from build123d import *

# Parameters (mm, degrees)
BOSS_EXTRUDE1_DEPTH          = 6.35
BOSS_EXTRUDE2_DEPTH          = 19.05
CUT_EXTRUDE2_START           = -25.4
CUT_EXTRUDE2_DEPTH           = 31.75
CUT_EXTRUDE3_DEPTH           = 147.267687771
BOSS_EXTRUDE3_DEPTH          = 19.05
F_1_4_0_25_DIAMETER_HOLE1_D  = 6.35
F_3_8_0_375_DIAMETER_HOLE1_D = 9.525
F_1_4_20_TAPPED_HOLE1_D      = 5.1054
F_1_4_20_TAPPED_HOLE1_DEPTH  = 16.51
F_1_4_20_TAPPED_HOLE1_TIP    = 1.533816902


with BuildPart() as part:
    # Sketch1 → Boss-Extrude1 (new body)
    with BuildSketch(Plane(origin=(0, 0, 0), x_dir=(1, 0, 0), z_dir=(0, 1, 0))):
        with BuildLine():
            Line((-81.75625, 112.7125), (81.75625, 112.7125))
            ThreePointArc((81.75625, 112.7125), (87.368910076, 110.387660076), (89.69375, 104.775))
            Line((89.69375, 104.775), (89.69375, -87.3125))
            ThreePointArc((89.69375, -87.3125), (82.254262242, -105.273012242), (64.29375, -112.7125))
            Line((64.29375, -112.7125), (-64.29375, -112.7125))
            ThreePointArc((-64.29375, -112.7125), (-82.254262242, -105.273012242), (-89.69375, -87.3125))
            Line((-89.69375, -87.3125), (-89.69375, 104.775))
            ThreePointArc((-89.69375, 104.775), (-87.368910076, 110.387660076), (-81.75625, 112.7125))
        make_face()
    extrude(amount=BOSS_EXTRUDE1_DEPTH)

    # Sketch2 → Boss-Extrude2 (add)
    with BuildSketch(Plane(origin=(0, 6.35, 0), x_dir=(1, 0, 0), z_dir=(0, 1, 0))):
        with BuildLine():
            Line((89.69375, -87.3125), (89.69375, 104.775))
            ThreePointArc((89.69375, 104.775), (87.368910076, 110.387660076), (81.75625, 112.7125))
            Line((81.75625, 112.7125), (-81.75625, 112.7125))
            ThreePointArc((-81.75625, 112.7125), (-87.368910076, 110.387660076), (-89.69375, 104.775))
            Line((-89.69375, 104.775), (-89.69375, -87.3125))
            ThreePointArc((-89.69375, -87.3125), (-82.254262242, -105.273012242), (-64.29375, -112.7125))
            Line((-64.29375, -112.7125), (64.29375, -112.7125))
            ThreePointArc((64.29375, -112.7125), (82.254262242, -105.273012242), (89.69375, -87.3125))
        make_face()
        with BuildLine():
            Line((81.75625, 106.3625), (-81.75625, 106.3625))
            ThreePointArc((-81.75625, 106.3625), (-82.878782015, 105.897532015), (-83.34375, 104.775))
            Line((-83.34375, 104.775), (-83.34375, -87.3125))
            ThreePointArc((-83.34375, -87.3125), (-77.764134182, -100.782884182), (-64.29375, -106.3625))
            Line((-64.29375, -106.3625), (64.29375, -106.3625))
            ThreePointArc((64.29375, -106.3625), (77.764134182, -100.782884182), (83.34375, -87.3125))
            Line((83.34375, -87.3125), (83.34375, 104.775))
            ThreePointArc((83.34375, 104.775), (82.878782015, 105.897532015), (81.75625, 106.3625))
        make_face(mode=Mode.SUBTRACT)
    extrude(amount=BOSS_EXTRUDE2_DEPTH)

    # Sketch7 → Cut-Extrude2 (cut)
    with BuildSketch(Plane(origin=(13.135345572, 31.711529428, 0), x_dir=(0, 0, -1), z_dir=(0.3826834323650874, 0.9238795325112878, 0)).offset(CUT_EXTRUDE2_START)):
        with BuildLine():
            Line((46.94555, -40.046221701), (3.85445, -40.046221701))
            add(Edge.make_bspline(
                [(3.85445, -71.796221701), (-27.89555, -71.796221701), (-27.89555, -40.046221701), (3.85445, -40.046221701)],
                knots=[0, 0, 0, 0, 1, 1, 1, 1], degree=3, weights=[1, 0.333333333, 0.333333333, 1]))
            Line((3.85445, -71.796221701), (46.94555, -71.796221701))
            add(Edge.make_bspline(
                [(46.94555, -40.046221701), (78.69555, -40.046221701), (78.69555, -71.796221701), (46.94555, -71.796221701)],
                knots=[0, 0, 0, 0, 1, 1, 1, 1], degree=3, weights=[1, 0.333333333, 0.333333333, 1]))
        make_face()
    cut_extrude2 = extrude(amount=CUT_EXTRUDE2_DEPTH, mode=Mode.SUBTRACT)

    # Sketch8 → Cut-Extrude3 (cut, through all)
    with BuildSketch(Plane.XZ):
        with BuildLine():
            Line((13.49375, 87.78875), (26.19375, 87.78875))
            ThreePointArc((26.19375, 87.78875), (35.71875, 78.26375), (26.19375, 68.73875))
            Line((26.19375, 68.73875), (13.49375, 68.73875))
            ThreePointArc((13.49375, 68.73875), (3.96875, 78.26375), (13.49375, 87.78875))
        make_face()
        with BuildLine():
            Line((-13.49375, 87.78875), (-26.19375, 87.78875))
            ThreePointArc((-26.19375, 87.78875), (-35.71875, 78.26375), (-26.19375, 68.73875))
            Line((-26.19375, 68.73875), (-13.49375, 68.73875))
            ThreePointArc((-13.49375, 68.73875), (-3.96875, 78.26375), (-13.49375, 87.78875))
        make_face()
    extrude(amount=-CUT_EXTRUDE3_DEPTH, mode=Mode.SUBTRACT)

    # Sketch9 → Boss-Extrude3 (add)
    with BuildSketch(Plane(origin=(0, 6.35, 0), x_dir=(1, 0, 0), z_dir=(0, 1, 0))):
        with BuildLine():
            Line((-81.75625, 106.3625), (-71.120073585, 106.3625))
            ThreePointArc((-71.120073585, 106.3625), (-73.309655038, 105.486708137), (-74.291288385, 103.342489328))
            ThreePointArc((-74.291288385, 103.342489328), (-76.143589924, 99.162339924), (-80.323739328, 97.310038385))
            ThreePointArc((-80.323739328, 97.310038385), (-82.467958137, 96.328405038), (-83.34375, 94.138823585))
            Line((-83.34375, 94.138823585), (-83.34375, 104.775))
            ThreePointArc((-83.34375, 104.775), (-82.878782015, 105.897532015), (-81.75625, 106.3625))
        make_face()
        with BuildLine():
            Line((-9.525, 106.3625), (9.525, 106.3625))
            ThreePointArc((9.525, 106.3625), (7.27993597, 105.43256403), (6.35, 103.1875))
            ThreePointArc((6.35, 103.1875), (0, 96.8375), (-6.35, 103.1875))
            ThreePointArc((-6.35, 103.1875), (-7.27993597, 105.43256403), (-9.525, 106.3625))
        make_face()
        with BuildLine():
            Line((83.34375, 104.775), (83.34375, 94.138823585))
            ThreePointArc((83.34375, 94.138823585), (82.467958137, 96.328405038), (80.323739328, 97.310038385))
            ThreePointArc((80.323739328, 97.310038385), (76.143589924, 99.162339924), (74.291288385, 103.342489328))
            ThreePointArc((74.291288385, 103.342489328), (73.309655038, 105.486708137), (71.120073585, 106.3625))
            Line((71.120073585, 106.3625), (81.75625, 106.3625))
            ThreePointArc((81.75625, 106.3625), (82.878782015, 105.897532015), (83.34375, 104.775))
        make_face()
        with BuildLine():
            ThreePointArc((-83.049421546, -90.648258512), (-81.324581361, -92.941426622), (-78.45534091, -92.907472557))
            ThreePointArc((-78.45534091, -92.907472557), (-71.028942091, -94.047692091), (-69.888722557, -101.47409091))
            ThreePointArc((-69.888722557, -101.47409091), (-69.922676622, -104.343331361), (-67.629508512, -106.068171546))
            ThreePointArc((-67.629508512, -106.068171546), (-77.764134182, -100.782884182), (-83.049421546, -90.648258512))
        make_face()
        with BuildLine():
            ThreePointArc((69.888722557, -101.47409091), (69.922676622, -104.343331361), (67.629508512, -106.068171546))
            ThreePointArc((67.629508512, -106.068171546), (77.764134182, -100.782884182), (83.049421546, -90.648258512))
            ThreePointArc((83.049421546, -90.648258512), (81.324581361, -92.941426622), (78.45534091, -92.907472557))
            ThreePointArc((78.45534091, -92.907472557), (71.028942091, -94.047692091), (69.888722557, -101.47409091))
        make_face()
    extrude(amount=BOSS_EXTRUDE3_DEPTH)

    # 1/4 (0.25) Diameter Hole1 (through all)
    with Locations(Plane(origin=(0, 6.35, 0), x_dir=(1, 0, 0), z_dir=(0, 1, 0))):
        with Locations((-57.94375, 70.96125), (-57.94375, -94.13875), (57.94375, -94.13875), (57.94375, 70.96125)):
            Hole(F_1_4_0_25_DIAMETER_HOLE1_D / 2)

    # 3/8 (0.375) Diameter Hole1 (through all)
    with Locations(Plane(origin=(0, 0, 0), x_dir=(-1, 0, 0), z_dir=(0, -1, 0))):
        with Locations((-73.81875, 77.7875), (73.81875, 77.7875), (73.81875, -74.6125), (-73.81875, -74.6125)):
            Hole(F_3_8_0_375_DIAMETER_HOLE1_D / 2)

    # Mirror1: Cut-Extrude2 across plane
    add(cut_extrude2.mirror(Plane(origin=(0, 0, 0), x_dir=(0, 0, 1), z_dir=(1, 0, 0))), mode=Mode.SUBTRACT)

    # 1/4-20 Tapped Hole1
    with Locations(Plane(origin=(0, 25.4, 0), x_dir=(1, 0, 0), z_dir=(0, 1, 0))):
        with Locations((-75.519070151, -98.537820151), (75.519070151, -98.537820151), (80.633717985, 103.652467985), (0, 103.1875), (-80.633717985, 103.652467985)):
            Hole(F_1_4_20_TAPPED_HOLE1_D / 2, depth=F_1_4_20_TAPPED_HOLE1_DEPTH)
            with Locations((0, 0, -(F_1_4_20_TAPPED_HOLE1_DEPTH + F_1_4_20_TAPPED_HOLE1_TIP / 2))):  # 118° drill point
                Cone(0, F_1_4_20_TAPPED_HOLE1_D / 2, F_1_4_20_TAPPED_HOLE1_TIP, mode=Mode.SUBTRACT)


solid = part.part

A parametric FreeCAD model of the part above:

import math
import FreeCAD as App
import Part
import Sketcher
from FreeCAD import Vector
Q = App.Units.Quantity

doc = App.newDocument("Part")
body = doc.addObject("PartDesign::Body", "Body")

sketch1 = body.newObject("Sketcher::SketchObject", "Sketch")
sketch1.AttachmentSupport = (doc.getObject("XZ_Plane"), [""])
sketch1.MapMode = "FlatFace"
sketch1.addGeometry([
    Part.LineSegment(Vector(82, -113, 0), Vector(-82, -113, 0)),
    Part.ArcOfCircle(Part.Circle(Vector(-82, -105, 0), Vector(0, 0, 1), 8), math.radians(180), math.radians(270)),
    Part.LineSegment(Vector(-90, -105, 0), Vector(-90, 87, 0)),
    Part.ArcOfCircle(Part.Circle(Vector(-64, 87, 0), Vector(0, 0, 1), 25), math.radians(90), math.radians(180)),
    Part.LineSegment(Vector(-64, 113, 0), Vector(64, 113, 0)),
    Part.ArcOfCircle(Part.Circle(Vector(64, 87, 0), Vector(0, 0, 1), 25), math.radians(0), math.radians(90)),
    Part.LineSegment(Vector(90, 87, 0), Vector(90, -105, 0)),
    Part.ArcOfCircle(Part.Circle(Vector(82, -105, 0), Vector(0, 0, 1), 8), math.radians(-90), math.radians(0)),
], False)
sketch1.addConstraint([
    Sketcher.Constraint("Tangent", 0, 2, 1, 2),
    Sketcher.Constraint("Tangent", 1, 1, 2, 1),
    Sketcher.Constraint("Tangent", 2, 2, 3, 2),
    Sketcher.Constraint("Tangent", 3, 1, 4, 1),
    Sketcher.Constraint("Tangent", 4, 2, 5, 2),
    Sketcher.Constraint("Tangent", 5, 1, 6, 1),
    Sketcher.Constraint("Tangent", 6, 2, 7, 2),
    Sketcher.Constraint("Tangent", 7, 1, 0, 1),
    Sketcher.Constraint("Horizontal", 0),
    Sketcher.Constraint("Vertical", 2),
    Sketcher.Constraint("Horizontal", 4),
    Sketcher.Constraint("Vertical", 6),
    Sketcher.Constraint("Equal", 3, 5),
    Sketcher.Constraint("Equal", 1, 7),
    Sketcher.Constraint("Radius", 3, Q("1 in")),
    Sketcher.Constraint("Radius", 1, Q("0.3125 in")),
    Sketcher.Constraint("DistanceX", 0, 2, 0, 1, Q("6.4375 in")),
    Sketcher.Constraint("DistanceY", 2, 1, 2, 2, Q("7.5625 in")),
    Sketcher.Constraint("DistanceX", 1, 3, -1, 1, Q("3.21875 in")),
    Sketcher.Constraint("DistanceY", 1, 3, -1, 1, Q("4.125 in")),
])
pad1 = body.newObject("PartDesign::Pad", "Pad")
pad1.Profile = sketch1
pad1.Length = Q("0.25 in")
pad1.Reversed = True

sketch2 = body.newObject("Sketcher::SketchObject", "Sketch001")
sketch2.AttachmentSupport = (doc.getObject("XZ_Plane"), [""])
sketch2.MapMode = "FlatFace"
sketch2.AttachmentOffset = App.Placement(Vector(0, 0, -0.25 * 25.4), App.Rotation())
sketch2.addGeometry([
    Part.LineSegment(Vector(89.7, 87.3, 0), Vector(89.7, -104.8, 0)),
    Part.ArcOfCircle(Part.Circle(Vector(81.8, -104.8, 0), Vector(0, 0, 1), 7.9), math.radians(-90), math.radians(0)),
    Part.LineSegment(Vector(81.8, -112.7, 0), Vector(-81.8, -112.7, 0)),
    Part.ArcOfCircle(Part.Circle(Vector(-81.8, -104.8, 0), Vector(0, 0, 1), 7.9), math.radians(180), math.radians(270)),
    Part.LineSegment(Vector(-89.7, -104.8, 0), Vector(-89.7, 87.3, 0)),
    Part.ArcOfCircle(Part.Circle(Vector(-64.3, 87.3, 0), Vector(0, 0, 1), 25.4), math.radians(90), math.radians(180)),
    Part.LineSegment(Vector(-64.3, 112.7, 0), Vector(64.3, 112.7, 0)),
    Part.ArcOfCircle(Part.Circle(Vector(64.3, 87.3, 0), Vector(0, 0, 1), 25.4), math.radians(0), math.radians(90)),
    Part.LineSegment(Vector(-81.8, -106.4, 0), Vector(81.8, -106.4, 0)),
    Part.ArcOfCircle(Part.Circle(Vector(81.8, -104.8, 0), Vector(0, 0, 1), 1.6), math.radians(-90), math.radians(0)),
    Part.LineSegment(Vector(83.3, -104.8, 0), Vector(83.3, 87.3, 0)),
    Part.ArcOfCircle(Part.Circle(Vector(64.3, 87.3, 0), Vector(0, 0, 1), 19), math.radians(0), math.radians(90)),
    Part.LineSegment(Vector(64.3, 106.4, 0), Vector(-64.3, 106.4, 0)),
    Part.ArcOfCircle(Part.Circle(Vector(-64.3, 87.3, 0), Vector(0, 0, 1), 19), math.radians(90), math.radians(180)),
    Part.LineSegment(Vector(-83.3, 87.3, 0), Vector(-83.3, -104.8, 0)),
    Part.ArcOfCircle(Part.Circle(Vector(-81.8, -104.8, 0), Vector(0, 0, 1), 1.6), math.radians(180), math.radians(270)),
], False)
sketch2.addConstraint([
    Sketcher.Constraint("Tangent", 0, 2, 1, 2),
    Sketcher.Constraint("Tangent", 1, 1, 2, 1),
    Sketcher.Constraint("Tangent", 2, 2, 3, 2),
    Sketcher.Constraint("Tangent", 3, 1, 4, 1),
    Sketcher.Constraint("Tangent", 4, 2, 5, 2),
    Sketcher.Constraint("Tangent", 5, 1, 6, 1),
    Sketcher.Constraint("Tangent", 6, 2, 7, 2),
    Sketcher.Constraint("Tangent", 7, 1, 0, 1),
    Sketcher.Constraint("Tangent", 8, 2, 9, 1),
    Sketcher.Constraint("Tangent", 9, 2, 10, 1),
    Sketcher.Constraint("Tangent", 10, 2, 11, 1),
    Sketcher.Constraint("Tangent", 11, 2, 12, 1),
    Sketcher.Constraint("Tangent", 12, 2, 13, 1),
    Sketcher.Constraint("Tangent", 13, 2, 14, 1),
    Sketcher.Constraint("Tangent", 14, 2, 15, 1),
    Sketcher.Constraint("Tangent", 15, 2, 8, 1),
    Sketcher.Constraint("Vertical", 0),
    Sketcher.Constraint("Horizontal", 2),
    Sketcher.Constraint("Vertical", 4),
    Sketcher.Constraint("Horizontal", 6),
    Sketcher.Constraint("Horizontal", 8),
    Sketcher.Constraint("Vertical", 10),
    Sketcher.Constraint("Horizontal", 12),
    Sketcher.Constraint("Vertical", 14),
    Sketcher.Constraint("Coincident", 9, 3, 1, 3),
    Sketcher.Constraint("Coincident", 11, 3, 7, 3),
    Sketcher.Constraint("Coincident", 13, 3, 5, 3),
    Sketcher.Constraint("Equal", 1, 3),
    Sketcher.Constraint("Equal", 5, 7),
    Sketcher.Constraint("Equal", 9, 15),
    Sketcher.Constraint("Radius", 5, Q("1 in")),
    Sketcher.Constraint("Radius", 11, Q("0.75 in")),
    Sketcher.Constraint("Radius", 1, Q("0.3125 in")),
    Sketcher.Constraint("DistanceX", 14, 2, 9, 3, Q("6.5 in")),
    Sketcher.Constraint("DistanceY", 0, 2, 0, 1, Q("7.5625 in")),
    Sketcher.Constraint("DistanceX", -1, 1, 1, 3, Q("3.21875 in")),
    Sketcher.Constraint("DistanceY", 1, 3, -1, 1, Q("4.125 in")),
])
pad2 = body.newObject("PartDesign::Pad", "Pad001")
pad2.Profile = sketch2
pad2.Length = Q("0.75 in")
pad2.Reversed = True

sketch3 = body.newObject("Sketcher::SketchObject", "Sketch002")
sketch3.Placement = App.Placement(Vector(3.415186, 8.244989, 0), App.Rotation(Vector(0, 0, -1), Vector(-0.923879533, 0.382683432, 0), Vector(0.382683432, 0.923879533, 0), "ZXY"))
sketch3.addGeometry([
    Part.LineSegment(Vector(46.94555, -40.046222, 0), Vector(3.85445, -40.046222, 0)),
    Part.BSplineCurve([Vector(3.85445, -71.796222, 0), Vector(-27.89555, -71.796222, 0), Vector(-27.89555, -40.046222, 0), Vector(3.85445, -40.046222, 0)], [4, 4], [0, 1], False, 3, [1, 0.333333333, 0.333333333, 1], False),
    Part.LineSegment(Vector(3.85445, -71.796222, 0), Vector(46.94555, -71.796222, 0)),
    Part.BSplineCurve([Vector(46.94555, -40.046222, 0), Vector(78.69555, -40.046222, 0), Vector(78.69555, -71.796222, 0), Vector(46.94555, -71.796222, 0)], [4, 4], [0, 1], False, 3, [1, 0.333333333, 0.333333333, 1], False),
], False)
sketch3.addConstraint([
    Sketcher.Constraint("Block", 1),
    Sketcher.Constraint("Block", 3),
    Sketcher.Constraint("Coincident", 0, 2, 1, 2),
    Sketcher.Constraint("Coincident", 1, 1, 2, 1),
    Sketcher.Constraint("Coincident", 2, 2, 3, 2),
    Sketcher.Constraint("Coincident", 3, 1, 0, 1),
])
pocket1 = body.newObject("PartDesign::Pocket", "Pocket")
pocket1.Profile = sketch3
pocket1.Length = Q("1.25 in")
pocket1.Reversed = True

sketch4 = body.newObject("Sketcher::SketchObject", "Sketch003")
sketch4.AttachmentSupport = (doc.getObject("XZ_Plane"), [""])
sketch4.MapMode = "FlatFace"
sketch4.addGeometry([
    Part.LineSegment(Vector(26, 88, 0), Vector(13, 88, 0)),
    Part.ArcOfCircle(Part.Circle(Vector(13, 78, 0), Vector(0, 0, 1), 10), math.radians(90), math.radians(270)),
    Part.LineSegment(Vector(13, 69, 0), Vector(26, 69, 0)),
    Part.ArcOfCircle(Part.Circle(Vector(26, 78, 0), Vector(0, 0, 1), 10), math.radians(-90), math.radians(90)),
    Part.LineSegment(Vector(-13, 88, 0), Vector(-26, 88, 0)),
    Part.ArcOfCircle(Part.Circle(Vector(-26, 78, 0), Vector(0, 0, 1), 10), math.radians(90), math.radians(270)),
    Part.LineSegment(Vector(-26, 69, 0), Vector(-13, 69, 0)),
    Part.ArcOfCircle(Part.Circle(Vector(-13, 78, 0), Vector(0, 0, 1), 10), math.radians(-90), math.radians(90)),
], False)
sketch4.addConstraint([
    Sketcher.Constraint("Tangent", 0, 2, 1, 1),
    Sketcher.Constraint("Tangent", 1, 2, 2, 1),
    Sketcher.Constraint("Tangent", 2, 2, 3, 1),
    Sketcher.Constraint("Tangent", 3, 2, 0, 1),
    Sketcher.Constraint("Tangent", 4, 2, 5, 1),
    Sketcher.Constraint("Tangent", 5, 2, 6, 1),
    Sketcher.Constraint("Tangent", 6, 2, 7, 1),
    Sketcher.Constraint("Tangent", 7, 2, 4, 1),
    Sketcher.Constraint("Horizontal", 0),
    Sketcher.Constraint("Horizontal", 2),
    Sketcher.Constraint("Horizontal", 4),
    Sketcher.Constraint("Horizontal", 6),
    Sketcher.Constraint("Equal", 3, 5),
    Sketcher.Constraint("Symmetric", 3, 3, 5, 3, -2),
    Sketcher.Constraint("Equal", 2, 4),
    Sketcher.Constraint("DistanceX", 0, 2, 0, 1, Q("0.5 in")),
    Sketcher.Constraint("Radius", 1, Q("0.375 in")),
    Sketcher.Constraint("DistanceX", -1, 1, 1, 3, Q("0.53125 in")),
    Sketcher.Constraint("DistanceY", -1, 1, 1, 3, Q("78.26375 mm")),
])
pocket2 = body.newObject("PartDesign::Pocket", "Pocket001")
pocket2.Profile = sketch4
pocket2.Type = "ThroughAll"

sketch5 = body.newObject("Sketcher::SketchObject", "Sketch004")
sketch5.AttachmentSupport = (doc.getObject("XZ_Plane"), [""])
sketch5.MapMode = "FlatFace"
sketch5.AttachmentOffset = App.Placement(Vector(0, 0, -0.25 * 25.4), App.Rotation())
sketch5.addGeometry([
    Part.LineSegment(Vector(-71.1, -106.4, 0), Vector(-81.8, -106.4, 0)),
    Part.ArcOfCircle(Part.Circle(Vector(-81.8, -104.8, 0), Vector(0, 0, 1), 1.6), math.radians(180), math.radians(270)),
    Part.LineSegment(Vector(-83.3, -104.8, 0), Vector(-83.3, -94.1, 0)),
    Part.ArcOfCircle(Part.Circle(Vector(-80.2, -94.1, 0), Vector(0, 0, 1), 3.2), math.radians(-180), math.radians(-93)),
    Part.ArcOfCircle(Part.Circle(Vector(-80.6, -103.7, 0), Vector(0, 0, 1), 6.3), math.radians(3), math.radians(87)),
    Part.ArcOfCircle(Part.Circle(Vector(-71.1, -103.2, 0), Vector(0, 0, 1), 3.2), math.radians(-177), math.radians(-90)),
    Part.LineSegment(Vector(9.5, -106.4, 0), Vector(-9.5, -106.4, 0)),
    Part.ArcOfCircle(Part.Circle(Vector(-9.5, -103.2, 0), Vector(0, 0, 1), 3.2), math.radians(-90), math.radians(0)),
    Part.ArcOfCircle(Part.Circle(Vector(0, -103.2, 0), Vector(0, 0, 1), 6.3), math.radians(0), math.radians(180)),
    Part.ArcOfCircle(Part.Circle(Vector(9.5, -103.2, 0), Vector(0, 0, 1), 3.2), math.radians(-180), math.radians(-90)),
    Part.LineSegment(Vector(83.3, -94.1, 0), Vector(83.3, -104.8, 0)),
    Part.ArcOfCircle(Part.Circle(Vector(81.8, -104.8, 0), Vector(0, 0, 1), 1.6), math.radians(-90), math.radians(0)),
    Part.LineSegment(Vector(81.8, -106.4, 0), Vector(71.1, -106.4, 0)),
    Part.ArcOfCircle(Part.Circle(Vector(71.1, -103.2, 0), Vector(0, 0, 1), 3.2), math.radians(-90), math.radians(-3)),
    Part.ArcOfCircle(Part.Circle(Vector(80.6, -103.7, 0), Vector(0, 0, 1), 6.3), math.radians(93), math.radians(177)),
    Part.ArcOfCircle(Part.Circle(Vector(80.2, -94.1, 0), Vector(0, 0, 1), 3.2), math.radians(-87), math.radians(0)),
    Part.ArcOfCircle(Part.Circle(Vector(-79.9, 90.1, 0), Vector(0, 0, 1), 3.2), math.radians(62), math.radians(170)),
    Part.ArcOfCircle(Part.Circle(Vector(-64.3, 87.3, 0), Vector(0, 0, 1), 19), math.radians(100), math.radians(170)),
    Part.ArcOfCircle(Part.Circle(Vector(-67.1, 102.9, 0), Vector(0, 0, 1), 3.2), math.radians(100), math.radians(208)),
    Part.ArcOfCircle(Part.Circle(Vector(-75.5, 98.5, 0), Vector(0, 0, 1), 6.3), math.radians(-118), math.radians(28)),
    Part.ArcOfCircle(Part.Circle(Vector(67.1, 102.9, 0), Vector(0, 0, 1), 3.2), math.radians(-28), math.radians(80)),
    Part.ArcOfCircle(Part.Circle(Vector(64.3, 87.3, 0), Vector(0, 0, 1), 19), math.radians(10), math.radians(80)),
    Part.ArcOfCircle(Part.Circle(Vector(79.9, 90.1, 0), Vector(0, 0, 1), 3.2), math.radians(10), math.radians(118)),
    Part.ArcOfCircle(Part.Circle(Vector(75.5, 98.5, 0), Vector(0, 0, 1), 6.3), math.radians(152), math.radians(298)),
], False)
sketch5.addConstraint([
    Sketcher.Constraint("Tangent", 0, 2, 1, 2),
    Sketcher.Constraint("Tangent", 1, 1, 2, 1),
    Sketcher.Constraint("Tangent", 2, 2, 3, 1),
    Sketcher.Constraint("Tangent", 3, 2, 4, 2),
    Sketcher.Constraint("Tangent", 4, 1, 5, 1),
    Sketcher.Constraint("Tangent", 5, 2, 0, 1),
    Sketcher.Constraint("Tangent", 6, 2, 7, 1),
    Sketcher.Constraint("Tangent", 7, 2, 8, 2),
    Sketcher.Constraint("Tangent", 8, 1, 9, 1),
    Sketcher.Constraint("Tangent", 9, 2, 6, 1),
    Sketcher.Constraint("Tangent", 10, 2, 11, 2),
    Sketcher.Constraint("Tangent", 11, 1, 12, 1),
    Sketcher.Constraint("Tangent", 12, 2, 13, 1),
    Sketcher.Constraint("Tangent", 13, 2, 14, 2),
    Sketcher.Constraint("Tangent", 14, 1, 15, 1),
    Sketcher.Constraint("Tangent", 15, 2, 10, 1),
    Sketcher.Constraint("Tangent", 16, 2, 17, 2),
    Sketcher.Constraint("Tangent", 17, 1, 18, 1),
    Sketcher.Constraint("Tangent", 18, 2, 19, 2),
    Sketcher.Constraint("Tangent", 19, 1, 16, 1),
    Sketcher.Constraint("Tangent", 20, 2, 21, 2),
    Sketcher.Constraint("Tangent", 21, 1, 22, 1),
    Sketcher.Constraint("Tangent", 22, 2, 23, 2),
    Sketcher.Constraint("Tangent", 23, 1, 20, 1),
    Sketcher.Constraint("Horizontal", 0),
    Sketcher.Constraint("Vertical", 2),
    Sketcher.Constraint("Horizontal", 6),
    Sketcher.Constraint("Vertical", 10),
    Sketcher.Constraint("Horizontal", 12),
    Sketcher.Constraint("Equal", 3, 5),
    Sketcher.Constraint("Equal", 5, 7),
    Sketcher.Constraint("Equal", 4, 8),
    Sketcher.Constraint("Equal", 7, 9),
    Sketcher.Constraint("Equal", 1, 11),
    Sketcher.Constraint("Equal", 9, 13),
    Sketcher.Constraint("Equal", 8, 14),
    Sketcher.Constraint("Equal", 13, 15),
    Sketcher.Constraint("Equal", 15, 16),
    Sketcher.Constraint("Equal", 16, 18),
    Sketcher.Constraint("Equal", 14, 19),
    Sketcher.Constraint("Equal", 18, 20),
    Sketcher.Constraint("Equal", 17, 21),
    Sketcher.Constraint("Equal", 20, 22),
    Sketcher.Constraint("Equal", 19, 23),
    Sketcher.Constraint("Symmetric", 1, 3, 11, 3, -2),
    Sketcher.Constraint("Symmetric", 4, 3, 14, 3, -2),
    Sketcher.Constraint("Symmetric", 18, 3, 20, 3, -2),
    Sketcher.Constraint("Symmetric", 16, 3, 22, 3, -2),
    Sketcher.Constraint("PointOnObject", 8, 3, -2),
    Sketcher.Constraint("Horizontal", 5, 3, 7, 3),
    Sketcher.Constraint("Horizontal", 7, 3, 8, 3),
    Sketcher.Constraint("Equal", 12, 2),
    Sketcher.Constraint("Radius", 4, Q("0.25 in")),
    Sketcher.Constraint("Radius", 17, Q("0.75 in")),
    Sketcher.Constraint("Radius", 1, Q("0.0625 in")),
    Sketcher.Constraint("Radius", 3, Q("0.125 in")),
    Sketcher.Constraint("DistanceY", 5, 3, 17, 3, Q("7.5 in")),
    Sketcher.Constraint("DistanceX", 1, 3, -1, 1, Q("3.21875 in")),
    Sketcher.Constraint("DistanceY", 1, 3, -1, 1, Q("4.125 in")),
    Sketcher.Constraint("DistanceX", 17, 3, -1, 1, Q("2.53125 in")),
    Sketcher.Constraint("DistanceY", -1, 1, 16, 3, Q("90.092299 mm")),
    Sketcher.Constraint("DistanceX", 18, 3, 17, 3, Q("2.779799 mm")),
    Sketcher.Constraint("DistanceX", 0, 2, 0, 1, Q("10.636176 mm")),
])
pad3 = body.newObject("PartDesign::Pad", "Pad002")
pad3.Profile = sketch5
pad3.Length = Q("0.75 in")
pad3.Reversed = True

sketch6 = body.newObject("Sketcher::SketchObject", "Sketch005")
sketch6.AttachmentSupport = (doc.getObject("XZ_Plane"), [""])
sketch6.MapMode = "FlatFace"
sketch6.AttachmentOffset = App.Placement(Vector(0, 0, -0.25 * 25.4), App.Rotation())
sketch6.addGeometry([
    Part.Circle(Vector(-57.9, -71, 0), Vector(0, 0, 1), 3.2),
    Part.Circle(Vector(-57.9, 94.1, 0), Vector(0, 0, 1), 3.2),
    Part.Circle(Vector(57.9, 94.1, 0), Vector(0, 0, 1), 3.2),
    Part.Circle(Vector(57.9, -71, 0), Vector(0, 0, 1), 3.2),
], False)
sketch6.addConstraint([
    Sketcher.Constraint("Equal", 0, 1),
    Sketcher.Constraint("Equal", 1, 2),
    Sketcher.Constraint("Equal", 2, 3),
    Sketcher.Constraint("Symmetric", 1, 3, 2, 3, -2),
    Sketcher.Constraint("Symmetric", 0, 3, 3, 3, -2),
    Sketcher.Constraint("Vertical", 0, 3, 1, 3),
    Sketcher.Constraint("Diameter", 0, Q("0.25 in")),
    Sketcher.Constraint("DistanceY", 0, 3, 1, 3, Q("6.5 in")),
    Sketcher.Constraint("DistanceX", 0, 3, -1, 1, Q("2.28125 in")),
    Sketcher.Constraint("DistanceY", 0, 3, -1, 1, Q("70.96125 mm")),
])
doc.recompute()
hole = body.newObject("PartDesign::Hole", "Hole")
hole.Profile = sketch6
hole.ThreadType = "None"
hole.Diameter = Q("0.25 in")
hole.DepthType = "ThroughAll"
hole.Reversed = True

sketch7 = body.newObject("Sketcher::SketchObject", "Sketch006")
sketch7.AttachmentSupport = (doc.getObject("XZ_Plane"), [""])
sketch7.MapMode = "FlatFace"
sketch7.addGeometry([
    Part.Circle(Vector(73.8, -77.8, 0), Vector(0, 0, 1), 4.8),
    Part.Circle(Vector(-73.8, -77.8, 0), Vector(0, 0, 1), 4.8),
    Part.Circle(Vector(-73.8, 74.6, 0), Vector(0, 0, 1), 4.8),
    Part.Circle(Vector(73.8, 74.6, 0), Vector(0, 0, 1), 4.8),
], False)
sketch7.addConstraint([
    Sketcher.Constraint("Equal", 0, 1),
    Sketcher.Constraint("Equal", 1, 2),
    Sketcher.Constraint("Equal", 2, 3),
    Sketcher.Constraint("Symmetric", 0, 3, 1, 3, -2),
    Sketcher.Constraint("Symmetric", 2, 3, 3, 3, -2),
    Sketcher.Constraint("Vertical", 1, 3, 2, 3),
    Sketcher.Constraint("Diameter", 0, Q("0.375 in")),
    Sketcher.Constraint("DistanceY", 1, 3, 2, 3, Q("6 in")),
    Sketcher.Constraint("DistanceX", -1, 1, 0, 3, Q("2.90625 in")),
    Sketcher.Constraint("DistanceY", 0, 3, -1, 1, Q("3.0625 in")),
])
doc.recompute()
hole2 = body.newObject("PartDesign::Hole", "Hole001")
hole2.Profile = sketch7
hole2.ThreadType = "None"
hole2.Diameter = Q("0.375 in")
hole2.DepthType = "ThroughAll"
doc.recompute()

mirrored = body.newObject("PartDesign::Mirrored", "Mirrored")
mirrored.Originals = [pocket1]
mirrored.MirrorPlane = (doc.getObject("YZ_Plane"), [""])
body.Tip = mirrored

sketch8 = body.newObject("Sketcher::SketchObject", "Sketch007")
sketch8.AttachmentSupport = (doc.getObject("XZ_Plane"), [""])
sketch8.MapMode = "FlatFace"
sketch8.AttachmentOffset = App.Placement(Vector(0, 0, -1 * 25.4), App.Rotation())
sketch8.addGeometry([
    Part.Circle(Vector(-75.5, 98.5, 0), Vector(0, 0, 1), 2.6),
    Part.Circle(Vector(75.5, 98.5, 0), Vector(0, 0, 1), 2.6),
    Part.Circle(Vector(80.6, -103.7, 0), Vector(0, 0, 1), 2.6),
    Part.Circle(Vector(0, -103.2, 0), Vector(0, 0, 1), 2.6),
    Part.Circle(Vector(-80.6, -103.7, 0), Vector(0, 0, 1), 2.6),
], False)
sketch8.addConstraint([
    Sketcher.Constraint("Equal", 0, 1),
    Sketcher.Constraint("Equal", 1, 2),
    Sketcher.Constraint("Equal", 2, 3),
    Sketcher.Constraint("Equal", 3, 4),
    Sketcher.Constraint("Symmetric", 0, 3, 1, 3, -2),
    Sketcher.Constraint("Symmetric", 2, 3, 4, 3, -2),
    Sketcher.Constraint("PointOnObject", 3, 3, -2),
    Sketcher.Constraint("Diameter", 0, Q("0.201 in")),
    Sketcher.Constraint("DistanceY", 3, 3, -1, 1, Q("4.0625 in")),
    Sketcher.Constraint("DistanceX", 0, 3, -1, 1, Q("75.51907 mm")),
    Sketcher.Constraint("DistanceY", -1, 1, 0, 3, Q("98.53782 mm")),
    Sketcher.Constraint("DistanceY", 2, 3, 1, 3, Q("202.190288 mm")),
    Sketcher.Constraint("DistanceX", 0, 3, 2, 3, Q("156.152788 mm")),
])
doc.recompute()
hole3 = body.newObject("PartDesign::Hole", "Hole002")
hole3.Profile = sketch8
hole3.ThreadType = "None"
hole3.Diameter = Q("0.201 in")
hole3.DepthType = "Dimension"
hole3.Depth = Q("0.65 in")
hole3.DrillPoint = "Angled"
hole3.DrillPointAngle = 118
hole3.Reversed = True

doc.recompute()
